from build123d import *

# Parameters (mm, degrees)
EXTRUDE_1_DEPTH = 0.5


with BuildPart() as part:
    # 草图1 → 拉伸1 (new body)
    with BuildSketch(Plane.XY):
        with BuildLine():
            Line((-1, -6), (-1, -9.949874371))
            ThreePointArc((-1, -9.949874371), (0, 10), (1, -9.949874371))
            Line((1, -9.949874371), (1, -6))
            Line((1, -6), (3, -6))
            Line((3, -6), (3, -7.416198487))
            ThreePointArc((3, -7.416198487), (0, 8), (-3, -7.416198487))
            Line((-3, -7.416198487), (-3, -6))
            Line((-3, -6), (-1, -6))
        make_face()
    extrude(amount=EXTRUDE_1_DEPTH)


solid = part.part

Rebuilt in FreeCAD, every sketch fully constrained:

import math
import FreeCAD as App
import Part
import Sketcher
from FreeCAD import Vector
Q = App.Units.Quantity

doc = App.newDocument("Part")
params = doc.addObject("Spreadsheet::Sheet", "Params")
for row, (alias, value) in enumerate([
    ("sketch1_radius", "8 mm"),
    ("sketch1_radius2", "10 mm"),
    ("sketch1_width", "2 mm"),
    ("pad1_length", "0.5 mm"),
], start=1):
    params.set(f"A{row}", alias)
    params.set(f"B{row}", "=" + value)
    params.setAlias(f"B{row}", alias)

body = doc.addObject("PartDesign::Body", "Body")

# Sketch on XY plane
sketch1 = body.newObject("Sketcher::SketchObject", "Sketch")
sketch1.AttachmentSupport = (doc.getObject("XY_Plane"), [""])
sketch1.MapMode = "FlatFace"
sketch1.addGeometry(Part.LineSegment(Vector(-1, -9.9, 0), Vector(-1, -6, 0)), False)
sketch1.addGeometry(Part.LineSegment(Vector(-1, -6, 0), Vector(-3, -6, 0)), False)
sketch1.addGeometry(Part.LineSegment(Vector(-3, -6, 0), Vector(-3, -7.4, 0)), False)
sketch1.addGeometry(Part.ArcOfCircle(Part.Circle(Vector(0, 0, 0), Vector(0, 0, 1), 8), math.radians(-68), math.radians(248)), False)
sketch1.addGeometry(Part.LineSegment(Vector(3, -7.4, 0), Vector(3, -6, 0)), False)
sketch1.addGeometry(Part.LineSegment(Vector(3, -6, 0), Vector(1, -6, 0)), False)
sketch1.addGeometry(Part.LineSegment(Vector(1, -6, 0), Vector(1, -9.9, 0)), False)
sketch1.addGeometry(Part.ArcOfCircle(Part.Circle(Vector(0, 0, 0), Vector(0, 0, 1), 10), math.radians(-84), math.radians(264)), False)
sketch1.addConstraint(Sketcher.Constraint("Coincident", 0, 2, 1, 1))
sketch1.addConstraint(Sketcher.Constraint("Coincident", 1, 2, 2, 1))
sketch1.addConstraint(Sketcher.Constraint("Coincident", 2, 2, 3, 2))
sketch1.addConstraint(Sketcher.Constraint("Coincident", 3, 1, 4, 1))
sketch1.addConstraint(Sketcher.Constraint("Coincident", 4, 2, 5, 1))
sketch1.addConstraint(Sketcher.Constraint("Coincident", 5, 2, 6, 1))
sketch1.addConstraint(Sketcher.Constraint("Coincident", 6, 2, 7, 1))
sketch1.addConstraint(Sketcher.Constraint("Coincident", 7, 2, 0, 1))
sketch1.addConstraint(Sketcher.Constraint("Vertical", 0))
sketch1.addConstraint(Sketcher.Constraint("Horizontal", 1))
sketch1.addConstraint(Sketcher.Constraint("Vertical", 2))
sketch1.addConstraint(Sketcher.Constraint("Vertical", 4))
sketch1.addConstraint(Sketcher.Constraint("Horizontal", 5))
sketch1.addConstraint(Sketcher.Constraint("Vertical", 6))
sketch1.addConstraint(Sketcher.Constraint("Coincident", 3, 3, -1, 1))
sketch1.addConstraint(Sketcher.Constraint("Coincident", 7, 3, -1, 1))
sketch1.addConstraint(Sketcher.Constraint("Symmetric", 1, 2, 4, 2, -2))
sketch1.addConstraint(Sketcher.Constraint("Horizontal", 6, 2, 7, 2))
sketch1.addConstraint(Sketcher.Constraint("Radius", 3, Q("8 mm")))
sketch1.addConstraint(Sketcher.Constraint("Radius", 7, Q("10 mm")))
sketch1.addConstraint(Sketcher.Constraint("DistanceX", 1, 2, 1, 1, Q("2 mm")))
sketch1.addConstraint(Sketcher.Constraint("DistanceX", 0, 2, -1, 1, Q("1 mm")))
sketch1.addConstraint(Sketcher.Constraint("DistanceY", 0, 2, -1, 1, Q("6 mm")))
sketch1.setExpression("Constraints[18]", "Params.sketch1_radius")
sketch1.setExpression("Constraints[19]", "Params.sketch1_radius2")
sketch1.setExpression("Constraints[20]", "Params.sketch1_width")
pad1 = body.newObject("PartDesign::Pad", "Pad")
pad1.Profile = sketch1
pad1.setExpression("Length", "Params.pad1_length")

doc.recompute()
